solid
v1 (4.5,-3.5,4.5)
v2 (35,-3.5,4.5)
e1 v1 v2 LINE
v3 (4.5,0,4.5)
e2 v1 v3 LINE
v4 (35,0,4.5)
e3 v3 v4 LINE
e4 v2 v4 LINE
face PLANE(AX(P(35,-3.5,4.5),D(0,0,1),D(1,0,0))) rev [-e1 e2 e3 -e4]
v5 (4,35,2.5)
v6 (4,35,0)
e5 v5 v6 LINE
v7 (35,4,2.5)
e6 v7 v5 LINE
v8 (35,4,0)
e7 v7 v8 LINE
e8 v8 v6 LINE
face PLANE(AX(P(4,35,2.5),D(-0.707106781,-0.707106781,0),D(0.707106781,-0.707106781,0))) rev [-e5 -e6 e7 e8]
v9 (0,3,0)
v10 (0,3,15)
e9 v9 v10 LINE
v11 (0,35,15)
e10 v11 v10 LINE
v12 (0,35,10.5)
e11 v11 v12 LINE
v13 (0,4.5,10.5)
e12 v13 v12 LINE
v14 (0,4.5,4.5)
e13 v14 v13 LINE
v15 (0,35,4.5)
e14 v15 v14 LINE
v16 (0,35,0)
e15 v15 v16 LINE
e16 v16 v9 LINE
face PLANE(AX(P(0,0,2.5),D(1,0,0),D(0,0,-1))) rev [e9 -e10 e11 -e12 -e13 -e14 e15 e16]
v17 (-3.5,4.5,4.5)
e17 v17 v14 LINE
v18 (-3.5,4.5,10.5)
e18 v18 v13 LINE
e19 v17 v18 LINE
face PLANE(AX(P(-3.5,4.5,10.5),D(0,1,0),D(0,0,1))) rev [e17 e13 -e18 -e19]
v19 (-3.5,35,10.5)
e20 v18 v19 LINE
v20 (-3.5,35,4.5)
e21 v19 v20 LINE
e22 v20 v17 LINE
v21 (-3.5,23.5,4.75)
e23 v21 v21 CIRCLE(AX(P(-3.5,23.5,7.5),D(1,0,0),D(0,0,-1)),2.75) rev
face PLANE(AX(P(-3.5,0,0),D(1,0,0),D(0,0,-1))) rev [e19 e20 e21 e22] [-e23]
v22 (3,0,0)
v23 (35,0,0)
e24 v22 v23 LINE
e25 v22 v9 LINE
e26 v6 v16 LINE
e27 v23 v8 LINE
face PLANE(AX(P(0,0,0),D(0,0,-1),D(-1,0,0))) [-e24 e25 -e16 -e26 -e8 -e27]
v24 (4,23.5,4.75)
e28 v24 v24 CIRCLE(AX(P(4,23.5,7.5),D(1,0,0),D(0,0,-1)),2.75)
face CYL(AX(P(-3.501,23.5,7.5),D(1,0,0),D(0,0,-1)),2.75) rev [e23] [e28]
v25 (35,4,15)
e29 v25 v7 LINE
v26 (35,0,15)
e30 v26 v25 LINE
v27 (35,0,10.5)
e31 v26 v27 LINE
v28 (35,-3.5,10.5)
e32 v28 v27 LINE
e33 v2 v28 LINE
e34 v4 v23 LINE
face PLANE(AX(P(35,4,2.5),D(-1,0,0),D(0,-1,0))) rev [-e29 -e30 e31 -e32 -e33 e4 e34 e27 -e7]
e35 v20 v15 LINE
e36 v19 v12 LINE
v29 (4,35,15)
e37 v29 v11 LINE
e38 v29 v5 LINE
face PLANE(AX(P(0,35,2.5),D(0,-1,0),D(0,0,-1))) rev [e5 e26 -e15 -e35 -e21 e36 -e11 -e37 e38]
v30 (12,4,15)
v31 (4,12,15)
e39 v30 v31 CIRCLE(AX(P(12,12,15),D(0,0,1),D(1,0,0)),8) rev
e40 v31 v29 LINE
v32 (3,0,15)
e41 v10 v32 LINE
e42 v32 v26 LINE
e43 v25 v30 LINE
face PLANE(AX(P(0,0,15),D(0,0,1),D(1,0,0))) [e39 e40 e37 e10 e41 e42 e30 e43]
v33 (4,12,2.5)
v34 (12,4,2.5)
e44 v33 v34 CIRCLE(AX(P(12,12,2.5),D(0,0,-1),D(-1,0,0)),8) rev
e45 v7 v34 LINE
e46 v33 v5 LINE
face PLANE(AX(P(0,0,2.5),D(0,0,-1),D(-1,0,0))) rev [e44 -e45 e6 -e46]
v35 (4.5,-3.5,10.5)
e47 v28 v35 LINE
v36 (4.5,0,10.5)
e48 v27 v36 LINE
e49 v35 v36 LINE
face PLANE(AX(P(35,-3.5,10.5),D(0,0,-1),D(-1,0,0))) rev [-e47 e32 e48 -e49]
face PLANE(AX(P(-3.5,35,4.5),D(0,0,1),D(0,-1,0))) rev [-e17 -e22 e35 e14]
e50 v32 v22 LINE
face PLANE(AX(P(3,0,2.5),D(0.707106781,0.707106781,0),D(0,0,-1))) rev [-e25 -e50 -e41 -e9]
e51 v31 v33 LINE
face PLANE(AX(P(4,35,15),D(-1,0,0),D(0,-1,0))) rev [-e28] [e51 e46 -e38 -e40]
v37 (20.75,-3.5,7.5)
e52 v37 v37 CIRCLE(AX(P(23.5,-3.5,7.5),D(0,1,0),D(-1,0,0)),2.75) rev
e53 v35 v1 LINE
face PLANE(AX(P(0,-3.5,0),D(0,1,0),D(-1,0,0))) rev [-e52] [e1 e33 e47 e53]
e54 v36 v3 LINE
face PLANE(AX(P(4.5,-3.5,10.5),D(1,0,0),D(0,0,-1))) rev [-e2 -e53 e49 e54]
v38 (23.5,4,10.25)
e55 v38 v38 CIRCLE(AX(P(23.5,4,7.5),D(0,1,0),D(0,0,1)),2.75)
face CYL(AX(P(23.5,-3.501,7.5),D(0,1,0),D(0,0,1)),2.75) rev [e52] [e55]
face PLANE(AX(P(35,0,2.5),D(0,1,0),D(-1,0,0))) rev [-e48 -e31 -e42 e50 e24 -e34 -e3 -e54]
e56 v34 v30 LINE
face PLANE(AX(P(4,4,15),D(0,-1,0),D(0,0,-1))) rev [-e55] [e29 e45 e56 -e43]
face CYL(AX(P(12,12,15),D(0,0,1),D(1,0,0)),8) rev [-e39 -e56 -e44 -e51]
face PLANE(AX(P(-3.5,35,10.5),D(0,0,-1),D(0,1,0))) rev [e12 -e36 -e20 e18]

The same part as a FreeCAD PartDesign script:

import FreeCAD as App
import Part
import Sketcher


def edges_at(feature, points):
    """Names of the edges that pass closest to the given points."""
    edges = feature.Shape.Edges
    near = lambda p: min(range(len(edges)), key=lambda i: edges[i].distToShape(Part.Vertex(*p))[0])
    return sorted({f"Edge{near(p) + 1}" for p in points})


def add_polygon(sketch, points):
    """Adds a closed chain of lines whose ends are joined by coincident constraints."""
    first, n = sketch.GeometryCount, len(points)
    for a, b in zip(points, points[1:] + points[:1]):
        sketch.addGeometry(Part.LineSegment(App.Vector(*a, 0), App.Vector(*b, 0)), False)
    for i in range(n):
        sketch.addConstraint(Sketcher.Constraint("Coincident", first + i, 2, first + (i + 1) % n, 1))

doc = App.newDocument("Part")
body = doc.addObject("PartDesign::Body", "Body")

sketch1 = doc.addObject("Sketcher::SketchObject", "Sketch")
body.addObject(sketch1)
sketch1.AttachmentSupport = (doc.XY_Plane, [""])
sketch1.MapMode = "FlatFace"
add_polygon(sketch1, [(0, 35), (0, 0), (35, 0), (35, 4), (4, 35)])
sketch1.addConstraint([
    Sketcher.Constraint("Vertical", 0),
    Sketcher.Constraint("Horizontal", 1),
    Sketcher.Constraint("Vertical", 2),
    Sketcher.Constraint("Horizontal", 4),
    Sketcher.Constraint("Coincident", 0, 2, -1, 1),
    Sketcher.Constraint("Equal", 1, 0),
    Sketcher.Constraint("Equal", 4, 2),
    Sketcher.Constraint("DistanceX", 1, 1, 1, 2, 35.0),
    Sketcher.Constraint("DistanceX", 4, 2, 4, 1, 4.0),
])
pad1 = doc.addObject("PartDesign::Pad", "Pad")
body.addObject(pad1)
pad1.Profile = sketch1
pad1.Length = 2.5

sketch2 = doc.addObject("Sketcher::SketchObject", "Sketch001")
body.addObject(sketch2)
sketch2.AttachmentSupport = (doc.XY_Plane, [""])
sketch2.MapMode = "FlatFace"
sketch2.AttachmentOffset = App.Placement(App.Vector(0, 0, 2.5), App.Rotation())
add_polygon(sketch2, [(35, 0), (35, 4), (4, 4), (4, 35), (0, 35), (0, 0)])
sketch2.addConstraint([
    Sketcher.Constraint("Vertical", 0),
    Sketcher.Constraint("Horizontal", 1),
    Sketcher.Constraint("Vertical", 2),
    Sketcher.Constraint("Horizontal", 3),
    Sketcher.Constraint("Vertical", 4),
    Sketcher.Constraint("Horizontal", 5),
    Sketcher.Constraint("Coincident", 4, 2, -1, 1),
    Sketcher.Constraint("Equal", 3, 0),
    Sketcher.Constraint("Equal", 1, 2),
    Sketcher.Constraint("DistanceX", 1, 2, 1, 1, 31.0),
    Sketcher.Constraint("DistanceX", 3, 2, 3, 1, 4.0),
])
pad2 = doc.addObject("PartDesign::Pad", "Pad001")
body.addObject(pad2)
pad2.Profile = sketch2
pad2.Length = 12.5

sketch3 = doc.addObject("Sketcher::SketchObject", "Sketch002")
body.addObject(sketch3)
sketch3.AttachmentSupport = (doc.XZ_Plane, [""])
sketch3.MapMode = "FlatFace"
add_polygon(sketch3, [(4, 10), (4, 4), (35, 4), (35, 10)])
sketch3.addConstraint([
    Sketcher.Constraint("Vertical", 0),
    Sketcher.Constraint("Horizontal", 1),
    Sketcher.Constraint("Vertical", 2),
    Sketcher.Constraint("Horizontal", 3),
    Sketcher.Constraint("DistanceY", 0, 2, 0, 1, 6.0),
    Sketcher.Constraint("DistanceX", 1, 1, 1, 2, 30.5),
    Sketcher.Constraint("DistanceX", -1, 1, 1, 2, 35.0),
    Sketcher.Constraint("DistanceY", -1, 1, 0, 2, 4.5),
])
pad3 = doc.addObject("PartDesign::Pad", "Pad002")
body.addObject(pad3)
pad3.Profile = sketch3
pad3.Length = 3.5

sketch4 = doc.addObject("Sketcher::SketchObject", "Sketch003")
body.addObject(sketch4)
sketch4.AttachmentSupport = (doc.YZ_Plane, [""])
sketch4.MapMode = "FlatFace"
add_polygon(sketch4, [(35, 4), (4, 4), (4, 10), (35, 10)])
sketch4.addConstraint([
    Sketcher.Constraint("Horizontal", 0),
    Sketcher.Constraint("Vertical", 1),
    Sketcher.Constraint("Horizontal", 2),
    Sketcher.Constraint("Vertical", 3),
    Sketcher.Constraint("DistanceY", 1, 1, 1, 2, 6.0),
    Sketcher.Constraint("DistanceX", 0, 2, 0, 1, 30.5),
    Sketcher.Constraint("DistanceX", -1, 1, 2, 2, 35.0),
    Sketcher.Constraint("DistanceY", -1, 1, 0, 2, 4.5),
])
pad4 = doc.addObject("PartDesign::Pad", "Pad003")
body.addObject(pad4)
pad4.Profile = sketch4
pad4.Length = 3.5
pad4.Reversed = True

sketch5 = doc.addObject("Sketcher::SketchObject", "Sketch004")
body.addObject(sketch5)
sketch5.AttachmentSupport = (doc.YZ_Plane, [""])
sketch5.MapMode = "FlatFace"
sketch5.AttachmentOffset = App.Placement(App.Vector(0, 0, 4), App.Rotation())
sketch5.addGeometry(Part.Circle(App.Vector(23.5, 7.5, 0), App.Vector(0, 0, 1), 2.8), False)
sketch5.addConstraint([
    Sketcher.Constraint("Diameter", 0, 5.5),
    Sketcher.Constraint("DistanceX", -1, 1, 0, 3, 23.5),
    Sketcher.Constraint("DistanceY", -1, 1, 0, 3, 7.5),
])
pocket1 = doc.addObject("PartDesign::Pocket", "Pocket")
body.addObject(pocket1)
pocket1.Profile = sketch5
pocket1.Type = "UpToFirst"

sketch6 = doc.addObject("Sketcher::SketchObject", "Sketch005")
body.addObject(sketch6)
sketch6.AttachmentSupport = (doc.XZ_Plane, [""])
sketch6.MapMode = "FlatFace"
sketch6.AttachmentOffset = App.Placement(App.Vector(0, 0, -4), App.Rotation())
sketch6.addGeometry(Part.Circle(App.Vector(23.5, 7.5, 0), App.Vector(0, 0, 1), 2.8), False)
sketch6.addConstraint([
    Sketcher.Constraint("Diameter", 0, 5.5),
    Sketcher.Constraint("DistanceX", -1, 1, 0, 3, 23.5),
    Sketcher.Constraint("DistanceY", -1, 1, 0, 3, 7.5),
])
pocket2 = doc.addObject("PartDesign::Pocket", "Pocket001")
body.addObject(pocket2)
pocket2.Profile = sketch6
pocket2.Type = "UpToFirst"
pocket2.Reversed = True
doc.recompute()

fillet = doc.addObject("PartDesign::Fillet", "Fillet")
body.addObject(fillet)
fillet.Base = (pocket2, edges_at(pocket2, [(4, 4, 8.75)]))
fillet.Radius = 8
doc.recompute()

chamfer = doc.addObject("PartDesign::Chamfer", "Chamfer")
body.addObject(chamfer)
chamfer.Base = (fillet, edges_at(fillet, [(0, 0, 7.5)]))
chamfer.Size = 3

doc.recompute()
